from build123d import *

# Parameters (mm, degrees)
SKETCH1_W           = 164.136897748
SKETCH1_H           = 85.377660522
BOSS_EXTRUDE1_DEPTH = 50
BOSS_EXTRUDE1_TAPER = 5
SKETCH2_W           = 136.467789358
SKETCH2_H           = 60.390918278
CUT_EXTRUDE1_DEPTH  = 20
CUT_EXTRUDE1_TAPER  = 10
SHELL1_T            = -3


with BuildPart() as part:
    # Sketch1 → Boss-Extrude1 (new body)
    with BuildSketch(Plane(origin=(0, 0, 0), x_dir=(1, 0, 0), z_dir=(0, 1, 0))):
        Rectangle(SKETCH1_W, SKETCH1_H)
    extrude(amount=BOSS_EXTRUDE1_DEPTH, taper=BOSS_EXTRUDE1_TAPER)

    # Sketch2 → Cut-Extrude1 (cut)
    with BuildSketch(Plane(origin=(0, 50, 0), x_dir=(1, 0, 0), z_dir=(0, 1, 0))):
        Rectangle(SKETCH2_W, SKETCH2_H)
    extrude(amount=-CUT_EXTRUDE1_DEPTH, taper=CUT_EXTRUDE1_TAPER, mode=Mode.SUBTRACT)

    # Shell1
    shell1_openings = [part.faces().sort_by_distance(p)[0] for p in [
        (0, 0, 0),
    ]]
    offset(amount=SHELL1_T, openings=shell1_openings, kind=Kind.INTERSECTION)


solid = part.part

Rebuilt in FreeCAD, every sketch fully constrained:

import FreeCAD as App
import Part
import Sketcher

V = App.Vector
Q = App.Units.Quantity


def faces_at(feature, points):
    """Names of the faces that lie closest to the given points."""
    faces = feature.Shape.Faces
    near = lambda p: min(range(len(faces)), key=lambda i: faces[i].distToShape(Part.Vertex(*p))[0])
    return sorted({f"Face{near(p) + 1}" for p in points})

doc = App.newDocument("Part")
body = doc.addObject("PartDesign::Body", "Body")

sketch1 = body.newObject("Sketcher::SketchObject", "Sketch")
sketch1.AttachmentSupport = (doc.getObject("XZ_Plane"), [""])
sketch1.MapMode = "FlatFace"
sketch1.addGeometry([
    Part.LineSegment(V(-82.068449, -42.68883, 0), V(-82.068449, 42.68883, 0)),
    Part.LineSegment(V(-82.068449, 42.68883, 0), V(82.068449, 42.68883, 0)),
    Part.LineSegment(V(82.068449, 42.68883, 0), V(82.068449, -42.68883, 0)),
    Part.LineSegment(V(82.068449, -42.68883, 0), V(-82.068449, -42.68883, 0)),
], False)
sketch1.addConstraint([
    Sketcher.Constraint("Coincident", 0, 2, 1, 1),
    Sketcher.Constraint("Coincident", 1, 2, 2, 1),
    Sketcher.Constraint("Coincident", 2, 2, 3, 1),
    Sketcher.Constraint("Coincident", 3, 2, 0, 1),
    Sketcher.Constraint("Vertical", 0),
    Sketcher.Constraint("Horizontal", 1),
    Sketcher.Constraint("Vertical", 2),
    Sketcher.Constraint("Horizontal", 3),
    Sketcher.Constraint("Symmetric", 0, 2, 2, 2, -1, 1),
    Sketcher.Constraint("DistanceY", 0, 1, 0, 2, Q("85.377661 mm")),
    Sketcher.Constraint("DistanceX", 1, 1, 1, 2, Q("164.136898 mm")),
])
pad1 = body.newObject("PartDesign::Pad", "Pad")
pad1.Profile = sketch1
pad1.Length = 50
pad1.Reversed = True
pad1.TaperAngle = -5

sketch2 = body.newObject("Sketcher::SketchObject", "Sketch001")
sketch2.AttachmentSupport = (doc.getObject("XZ_Plane"), [""])
sketch2.MapMode = "FlatFace"
sketch2.AttachmentOffset = App.Placement(V(0, 0, -50), App.Rotation())
sketch2.addGeometry([
    Part.LineSegment(V(-68.233895, -30.195459, 0), V(-68.233895, 30.195459, 0)),
    Part.LineSegment(V(-68.233895, 30.195459, 0), V(68.233895, 30.195459, 0)),
    Part.LineSegment(V(68.233895, 30.195459, 0), V(68.233895, -30.195459, 0)),
    Part.LineSegment(V(68.233895, -30.195459, 0), V(-68.233895, -30.195459, 0)),
], False)
sketch2.addConstraint([
    Sketcher.Constraint("Coincident", 0, 2, 1, 1),
    Sketcher.Constraint("Coincident", 1, 2, 2, 1),
    Sketcher.Constraint("Coincident", 2, 2, 3, 1),
    Sketcher.Constraint("Coincident", 3, 2, 0, 1),
    Sketcher.Constraint("Vertical", 0),
    Sketcher.Constraint("Horizontal", 1),
    Sketcher.Constraint("Vertical", 2),
    Sketcher.Constraint("Horizontal", 3),
    Sketcher.Constraint("Symmetric", 0, 2, 2, 2, -1, 1),
    Sketcher.Constraint("DistanceX", 1, 1, 1, 2, Q("136.467789 mm")),
    Sketcher.Constraint("DistanceY", 0, 1, 0, 2, Q("60.390918 mm")),
])
pocket1 = body.newObject("PartDesign::Pocket", "Pocket")
pocket1.Profile = sketch2
pocket1.Length = 20
pocket1.Reversed = True
pocket1.TaperAngle = -10
doc.recompute()

thickness = body.newObject("PartDesign::Thickness", "Thickness")
thickness.Base = (pocket1, faces_at(pocket1, [(0, 0, 0)]))
thickness.Value = 3
thickness.Reversed = True
thickness.Join = "Intersection"

doc.recompute()
